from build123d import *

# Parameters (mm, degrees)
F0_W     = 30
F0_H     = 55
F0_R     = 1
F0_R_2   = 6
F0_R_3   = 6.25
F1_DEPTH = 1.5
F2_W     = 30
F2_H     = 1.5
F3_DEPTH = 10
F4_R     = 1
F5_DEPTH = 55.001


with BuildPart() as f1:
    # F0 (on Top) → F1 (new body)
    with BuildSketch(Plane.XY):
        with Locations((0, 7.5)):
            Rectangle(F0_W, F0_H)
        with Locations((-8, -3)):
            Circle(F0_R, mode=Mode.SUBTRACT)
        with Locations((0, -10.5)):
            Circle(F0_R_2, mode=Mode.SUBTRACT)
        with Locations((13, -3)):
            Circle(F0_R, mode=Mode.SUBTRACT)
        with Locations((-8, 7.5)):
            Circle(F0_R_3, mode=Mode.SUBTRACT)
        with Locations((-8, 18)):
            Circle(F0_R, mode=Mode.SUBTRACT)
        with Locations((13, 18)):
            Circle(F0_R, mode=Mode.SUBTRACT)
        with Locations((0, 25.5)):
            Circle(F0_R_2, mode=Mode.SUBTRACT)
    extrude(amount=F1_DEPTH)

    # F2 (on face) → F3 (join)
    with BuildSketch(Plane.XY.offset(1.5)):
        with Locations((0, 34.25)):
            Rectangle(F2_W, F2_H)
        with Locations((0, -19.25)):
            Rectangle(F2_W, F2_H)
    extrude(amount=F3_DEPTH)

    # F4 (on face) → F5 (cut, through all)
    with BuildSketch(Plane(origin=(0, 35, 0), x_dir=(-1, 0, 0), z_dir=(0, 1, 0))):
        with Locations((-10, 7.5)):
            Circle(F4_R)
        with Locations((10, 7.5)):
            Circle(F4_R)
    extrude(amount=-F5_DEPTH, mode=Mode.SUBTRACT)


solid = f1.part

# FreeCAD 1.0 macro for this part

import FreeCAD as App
import Part
import Sketcher
from FreeCAD import Vector


def add_polygon(sketch, points):
    """Adds a closed chain of lines whose ends are joined by coincident constraints."""
    first, n = sketch.GeometryCount, len(points)
    for a, b in zip(points, points[1:] + points[:1]):
        sketch.addGeometry(Part.LineSegment(App.Vector(*a, 0), App.Vector(*b, 0)), False)
    for i in range(n):
        sketch.addConstraint(Sketcher.Constraint("Coincident", first + i, 2, first + (i + 1) % n, 1))

doc = App.newDocument("Part")
body = doc.addObject("PartDesign::Body", "Body")

# Sketch on XY plane
sketch1 = doc.addObject("Sketcher::SketchObject", "Sketch")
body.addObject(sketch1)
sketch1.AttachmentSupport = (doc.XY_Plane, [""])
sketch1.MapMode = "FlatFace"
add_polygon(sketch1, [(-15, 35), (-15, -20), (15, -20), (15, 35)])  # lines 0-3
sketch1.addGeometry(Part.Circle(Vector(-8, -3, 0), Vector(0, 0, 1), 1), False)  # 4
sketch1.addGeometry(Part.Circle(Vector(0, -10.5, 0), Vector(0, 0, 1), 6), False)  # 5
sketch1.addGeometry(Part.Circle(Vector(13, -3, 0), Vector(0, 0, 1), 1), False)  # 6
sketch1.addGeometry(Part.Circle(Vector(-8, 7.5, 0), Vector(0, 0, 1), 6.2), False)  # 7
sketch1.addGeometry(Part.Circle(Vector(-8, 18, 0), Vector(0, 0, 1), 1), False)  # 8
sketch1.addGeometry(Part.Circle(Vector(13, 18, 0), Vector(0, 0, 1), 1), False)  # 9
sketch1.addGeometry(Part.Circle(Vector(0, 25.5, 0), Vector(0, 0, 1), 6), False)  # 10
sketch1.addConstraint([
    Sketcher.Constraint("Vertical", 0),
    Sketcher.Constraint("Horizontal", 1),
    Sketcher.Constraint("Vertical", 2),
    Sketcher.Constraint("Horizontal", 3),
    Sketcher.Constraint("Equal", 4, 6),
    Sketcher.Constraint("Equal", 6, 8),
    Sketcher.Constraint("Equal", 8, 9),
    Sketcher.Constraint("Equal", 5, 10),
    Sketcher.Constraint("PointOnObject", 5, 3, -2),
    Sketcher.Constraint("PointOnObject", 10, 3, -2),
    Sketcher.Constraint("Horizontal", 4, 3, 6, 3),
    Sketcher.Constraint("Horizontal", 8, 3, 9, 3),
    Sketcher.Constraint("Vertical", 4, 3, 7, 3),
    Sketcher.Constraint("Vertical", 7, 3, 8, 3),
    Sketcher.Constraint("Vertical", 6, 3, 9, 3),
    Sketcher.Constraint("Diameter", 4, 2.0),
    Sketcher.Constraint("Diameter", 5, 12.0),
    Sketcher.Constraint("Diameter", 7, 12.5),
    Sketcher.Constraint("DistanceX", 1, 1, 1, 2, 30.0),
    Sketcher.Constraint("DistanceY", 0, 2, 0, 1, 55.0),
    Sketcher.Constraint("DistanceX", 4, 3, -1, 1, 8.0),
    Sketcher.Constraint("DistanceY", 4, 3, -1, 1, 3.0),
    Sketcher.Constraint("DistanceX", -1, 1, 6, 3, 13.0),
    Sketcher.Constraint("DistanceY", -1, 1, 8, 3, 18.0),
    Sketcher.Constraint("DistanceX", 0, 2, -1, 1, 15.0),
    Sketcher.Constraint("DistanceY", 0, 2, -1, 1, 20.0),
    Sketcher.Constraint("DistanceY", 5, 3, 7, 3, 18.0),
    Sketcher.Constraint("DistanceY", 7, 3, 10, 3, 18.0),
    Sketcher.Constraint("DistanceY", 5, 3, -1, 1, 10.5),
])
pad1 = doc.addObject("PartDesign::Pad", "Pad")
body.addObject(pad1)
pad1.Profile = sketch1
pad1.Length = 1.5

# Sketch on XY plane
sketch2 = doc.addObject("Sketcher::SketchObject", "Sketch001")
body.addObject(sketch2)
sketch2.AttachmentSupport = (doc.XY_Plane, [""])
sketch2.MapMode = "FlatFace"
sketch2.AttachmentOffset = App.Placement(Vector(0, 0, 1.5), App.Rotation())
add_polygon(sketch2, [(-15, 35), (-15, 33.5), (15, 33.5), (15, 35)])  # lines 0-3
add_polygon(sketch2, [(-15, -18.5), (-15, -20), (15, -20), (15, -18.5)])  # lines 4-7
sketch2.addConstraint([
    Sketcher.Constraint("Vertical", 0),
    Sketcher.Constraint("Horizontal", 1),
    Sketcher.Constraint("Vertical", 2),
    Sketcher.Constraint("Horizontal", 3),
    Sketcher.Constraint("Vertical", 4),
    Sketcher.Constraint("Horizontal", 5),
    Sketcher.Constraint("Vertical", 6),
    Sketcher.Constraint("Horizontal", 7),
    Sketcher.Constraint("Vertical", 3, 2, 4, 2),
    Sketcher.Constraint("Vertical", 2, 2, 5, 2),
    Sketcher.Constraint("Equal", 2, 4),
    Sketcher.Constraint("DistanceX", 1, 1, 1, 2, 30.0),
    Sketcher.Constraint("DistanceY", 0, 2, 0, 1, 1.5),
    Sketcher.Constraint("DistanceX", 0, 2, -1, 1, 15.0),
    Sketcher.Constraint("DistanceY", -1, 1, 2, 2, 35.0),
    Sketcher.Constraint("DistanceY", 4, 2, -1, 1, 20.0),
])
pad2 = doc.addObject("PartDesign::Pad", "Pad001")
body.addObject(pad2)
pad2.Profile = sketch2
pad2.Length = 10

# Sketch on XZ plane
sketch3 = doc.addObject("Sketcher::SketchObject", "Sketch002")
body.addObject(sketch3)
sketch3.AttachmentSupport = (doc.XZ_Plane, [""])
sketch3.MapMode = "FlatFace"
sketch3.AttachmentOffset = App.Placement(Vector(0, 0, -35), App.Rotation())
sketch3.addGeometry([
    Part.Circle(Vector(10, 7.5, 0), Vector(0, 0, 1), 1),
    Part.Circle(Vector(-10, 7.5, 0), Vector(0, 0, 1), 1),
], False)
sketch3.addConstraint([
    Sketcher.Constraint("Equal", 0, 1),
    Sketcher.Constraint("Symmetric", 0, 3, 1, 3, -2),
    Sketcher.Constraint("Diameter", 0, 2.0),
    Sketcher.Constraint("DistanceX", -1, 1, 0, 3, 10.0),
    Sketcher.Constraint("DistanceY", -1, 1, 0, 3, 7.5),
])
pocket1 = doc.addObject("PartDesign::Pocket", "Pocket")
body.addObject(pocket1)
pocket1.Profile = sketch3
pocket1.Type = "ThroughAll"
pocket1.Reversed = True

doc.recompute()
